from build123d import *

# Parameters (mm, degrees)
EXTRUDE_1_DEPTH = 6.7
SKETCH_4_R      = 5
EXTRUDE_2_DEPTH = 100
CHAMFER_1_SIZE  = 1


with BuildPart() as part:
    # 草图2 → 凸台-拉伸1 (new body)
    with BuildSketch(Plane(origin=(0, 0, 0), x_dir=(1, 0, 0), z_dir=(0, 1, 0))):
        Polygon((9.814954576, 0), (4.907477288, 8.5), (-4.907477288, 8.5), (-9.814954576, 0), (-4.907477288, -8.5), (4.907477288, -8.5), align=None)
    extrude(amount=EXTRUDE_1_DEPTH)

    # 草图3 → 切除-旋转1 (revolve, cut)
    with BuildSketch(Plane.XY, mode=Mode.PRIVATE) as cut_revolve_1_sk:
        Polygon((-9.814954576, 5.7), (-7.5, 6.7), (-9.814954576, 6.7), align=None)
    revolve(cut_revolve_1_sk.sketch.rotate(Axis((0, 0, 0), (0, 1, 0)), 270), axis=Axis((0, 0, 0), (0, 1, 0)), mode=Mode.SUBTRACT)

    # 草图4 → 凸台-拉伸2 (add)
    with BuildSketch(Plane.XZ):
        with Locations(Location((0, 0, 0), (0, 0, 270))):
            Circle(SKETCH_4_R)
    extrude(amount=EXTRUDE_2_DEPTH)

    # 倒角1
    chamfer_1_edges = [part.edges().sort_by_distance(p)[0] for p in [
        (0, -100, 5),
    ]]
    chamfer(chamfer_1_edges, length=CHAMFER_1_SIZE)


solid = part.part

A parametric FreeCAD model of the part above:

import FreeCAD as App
import Part
import Sketcher

V = App.Vector
Q = App.Units.Quantity


def edges_at(feature, points):
    """Names of the edges that pass closest to the given points."""
    edges = feature.Shape.Edges
    near = lambda p: min(range(len(edges)), key=lambda i: edges[i].distToShape(Part.Vertex(*p))[0])
    return sorted({f"Edge{near(p) + 1}" for p in points})


def add_polygon(sketch, points):
    """Adds a closed chain of lines whose ends are joined by coincident constraints."""
    first, n = sketch.GeometryCount, len(points)
    for a, b in zip(points, points[1:] + points[:1]):
        sketch.addGeometry(Part.LineSegment(App.Vector(*a, 0), App.Vector(*b, 0)), False)
    for i in range(n):
        sketch.addConstraint(Sketcher.Constraint("Coincident", first + i, 2, first + (i + 1) % n, 1))

doc = App.newDocument("Part")
body = doc.addObject("PartDesign::Body", "Body")

# Sketch on XZ plane
sketch1 = body.newObject("Sketcher::SketchObject", "Sketch")
sketch1.AttachmentSupport = (doc.getObject("XZ_Plane"), [""])
sketch1.MapMode = "FlatFace"
add_polygon(sketch1, [(10, 0), (5, -8), (-5, -8), (-10, 0), (-5, 8), (5, 8)])  # lines 0-5
sketch1.addConstraint(Sketcher.Constraint("Horizontal", 1))
sketch1.addConstraint(Sketcher.Constraint("Horizontal", 4))
sketch1.addConstraint(Sketcher.Constraint("Symmetric", 0, 2, 3, 2, -1, 1))
sketch1.addConstraint(Sketcher.Constraint("Symmetric", 2, 2, 5, 2, -1, 1))
sketch1.addConstraint(Sketcher.Constraint("PointOnObject", 2, 2, -1))
sketch1.addConstraint(Sketcher.Constraint("Parallel", 2, 5))
sketch1.addConstraint(Sketcher.Constraint("Vertical", 1, 2, 3, 2))
sketch1.addConstraint(Sketcher.Constraint("Angle", 0, Q("-120 deg")))
sketch1.addConstraint(Sketcher.Constraint("DistanceY", 1, 2, 3, 2, Q("17 mm")))
sketch1.addConstraint(Sketcher.Constraint("DistanceX", 1, 2, 1, 1, Q("9.814955 mm")))
pad1 = body.newObject("PartDesign::Pad", "Pad")
pad1.Profile = sketch1
pad1.Length = 6.7
pad1.Reversed = True

# Sketch on XY plane
sketch2 = body.newObject("Sketcher::SketchObject", "Sketch001")
sketch2.AttachmentSupport = (doc.getObject("XY_Plane"), [""])
sketch2.MapMode = "FlatFace"
add_polygon(sketch2, [(-9.8, 5.7), (-7.5, 6.7), (-9.8, 6.7)])  # lines 0-2
sketch2.addConstraint(Sketcher.Constraint("Horizontal", 1))
sketch2.addConstraint(Sketcher.Constraint("Vertical", 2))
sketch2.addConstraint(Sketcher.Constraint("DistanceY", 2, 2, 2, 1, Q("1 mm")))
sketch2.addConstraint(Sketcher.Constraint("DistanceX", 0, 2, -1, 1, Q("7.5 mm")))
sketch2.addConstraint(Sketcher.Constraint("DistanceY", -1, 1, 0, 2, Q("6.7 mm")))
sketch2.addConstraint(Sketcher.Constraint("Distance", 0, Q("2.521709 mm")))
groove = body.newObject("PartDesign::Groove", "Groove")
groove.Profile = sketch2
groove.ReferenceAxis = (sketch2, ["V_Axis"])
groove.Angle = 360

# Sketch on XZ plane
sketch3 = body.newObject("Sketcher::SketchObject", "Sketch002")
sketch3.AttachmentSupport = (doc.getObject("XZ_Plane"), [""])
sketch3.MapMode = "FlatFace"
sketch3.addGeometry(Part.Circle(V(0, 0, 0), V(0, 0, 1), 5), False)
sketch3.addConstraint(Sketcher.Constraint("Coincident", 0, 3, -1, 1))
sketch3.addConstraint(Sketcher.Constraint("Diameter", 0, Q("10 mm")))
pad2 = body.newObject("PartDesign::Pad", "Pad001")
pad2.Profile = sketch3
pad2.Length = 100
doc.recompute()

chamfer = body.newObject("PartDesign::Chamfer", "Chamfer")
chamfer.Base = (pad2, edges_at(pad2, [(0, -100, 5)]))
chamfer.Size = 1

doc.recompute()
